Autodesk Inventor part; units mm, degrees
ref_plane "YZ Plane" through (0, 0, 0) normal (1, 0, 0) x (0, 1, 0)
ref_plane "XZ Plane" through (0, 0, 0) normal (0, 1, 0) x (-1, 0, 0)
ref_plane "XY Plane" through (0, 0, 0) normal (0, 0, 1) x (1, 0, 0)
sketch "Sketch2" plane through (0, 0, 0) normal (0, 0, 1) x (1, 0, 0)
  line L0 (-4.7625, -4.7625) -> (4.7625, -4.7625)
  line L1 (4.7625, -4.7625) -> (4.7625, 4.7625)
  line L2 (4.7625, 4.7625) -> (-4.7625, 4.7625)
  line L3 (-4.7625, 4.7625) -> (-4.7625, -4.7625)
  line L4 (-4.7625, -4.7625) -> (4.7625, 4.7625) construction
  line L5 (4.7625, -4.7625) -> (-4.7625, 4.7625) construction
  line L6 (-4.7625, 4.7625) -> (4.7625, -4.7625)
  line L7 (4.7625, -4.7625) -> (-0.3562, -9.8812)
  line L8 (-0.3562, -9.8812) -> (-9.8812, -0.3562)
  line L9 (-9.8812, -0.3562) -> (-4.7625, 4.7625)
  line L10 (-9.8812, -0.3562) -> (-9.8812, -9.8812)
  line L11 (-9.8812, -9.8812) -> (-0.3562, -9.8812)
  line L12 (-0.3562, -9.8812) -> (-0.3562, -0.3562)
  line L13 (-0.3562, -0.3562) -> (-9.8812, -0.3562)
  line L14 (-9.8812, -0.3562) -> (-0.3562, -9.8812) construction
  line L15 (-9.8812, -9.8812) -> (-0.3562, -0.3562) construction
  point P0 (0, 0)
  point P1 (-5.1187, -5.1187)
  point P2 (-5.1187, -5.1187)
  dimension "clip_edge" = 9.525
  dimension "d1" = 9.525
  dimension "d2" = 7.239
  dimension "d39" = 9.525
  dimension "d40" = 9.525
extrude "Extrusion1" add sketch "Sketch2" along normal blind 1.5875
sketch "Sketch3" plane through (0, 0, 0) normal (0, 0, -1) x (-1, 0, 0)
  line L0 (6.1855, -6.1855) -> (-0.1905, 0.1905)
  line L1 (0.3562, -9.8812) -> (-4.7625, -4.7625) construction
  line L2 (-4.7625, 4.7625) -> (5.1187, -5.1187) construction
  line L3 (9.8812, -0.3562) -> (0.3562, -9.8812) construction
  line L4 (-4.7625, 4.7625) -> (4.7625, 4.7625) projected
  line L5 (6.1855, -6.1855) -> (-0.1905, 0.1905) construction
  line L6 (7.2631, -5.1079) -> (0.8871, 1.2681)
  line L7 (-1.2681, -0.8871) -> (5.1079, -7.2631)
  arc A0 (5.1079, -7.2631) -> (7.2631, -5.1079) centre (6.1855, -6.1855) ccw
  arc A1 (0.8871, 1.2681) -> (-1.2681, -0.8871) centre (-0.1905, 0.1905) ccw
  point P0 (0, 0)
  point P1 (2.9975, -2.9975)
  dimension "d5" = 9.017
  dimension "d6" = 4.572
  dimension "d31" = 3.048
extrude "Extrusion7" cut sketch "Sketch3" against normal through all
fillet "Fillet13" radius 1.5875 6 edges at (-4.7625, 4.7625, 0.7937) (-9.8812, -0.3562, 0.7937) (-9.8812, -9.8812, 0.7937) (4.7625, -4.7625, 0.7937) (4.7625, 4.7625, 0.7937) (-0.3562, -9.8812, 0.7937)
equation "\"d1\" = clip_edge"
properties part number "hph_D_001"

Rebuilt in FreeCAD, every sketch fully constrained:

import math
import FreeCAD as App
import Part
import Sketcher
from FreeCAD import Vector
Q = App.Units.Quantity


def edges_at(feature, points):
    """Names of the edges that pass closest to the given points."""
    edges = feature.Shape.Edges
    near = lambda p: min(range(len(edges)), key=lambda i: edges[i].distToShape(Part.Vertex(*p))[0])
    return sorted({f"Edge{near(p) + 1}" for p in points})


def add_polygon(sketch, points):
    """Adds a closed chain of lines whose ends are joined by coincident constraints."""
    first, n = sketch.GeometryCount, len(points)
    for a, b in zip(points, points[1:] + points[:1]):
        sketch.addGeometry(Part.LineSegment(App.Vector(*a, 0), App.Vector(*b, 0)), False)
    for i in range(n):
        sketch.addConstraint(Sketcher.Constraint("Coincident", first + i, 2, first + (i + 1) % n, 1))

doc = App.newDocument("Part")
body = doc.addObject("PartDesign::Body", "Body")

# Sketch on XY plane
sketch1 = body.newObject("Sketcher::SketchObject", "Sketch")
sketch1.AttachmentSupport = (doc.getObject("XY_Plane"), [""])
sketch1.MapMode = "FlatFace"
add_polygon(sketch1, [(-5, 5), (-10, 0), (-10, -10), (0, -10), (5, -5), (5, 5)])  # lines 0-5
sketch1.addConstraint([
    Sketcher.Constraint("Vertical", 1),
    Sketcher.Constraint("Horizontal", 2),
    Sketcher.Constraint("Vertical", 4),
    Sketcher.Constraint("Horizontal", 5),
    Sketcher.Constraint("Symmetric", 3, 2, 5, 2, -1, 1),
    Sketcher.Constraint("Parallel", 0, 3),
    Sketcher.Constraint("Equal", 2, 5),
    Sketcher.Constraint("Equal", 5, 1),
    Sketcher.Constraint("DistanceX", 2, 1, 2, 2, Q("0.375 in")),
    Sketcher.Constraint("Distance", 0, Q("0.285 in")),
    Sketcher.Constraint("Angle", 0, Q("-135 deg")),
])
pad1 = body.newObject("PartDesign::Pad", "Pad")
pad1.Profile = sketch1
pad1.Length = Q("0.0625 in")

# Sketch on XY plane
sketch2 = body.newObject("Sketcher::SketchObject", "Sketch001")
sketch2.AttachmentSupport = (doc.getObject("XY_Plane"), [""])
sketch2.MapMode = "FlatFace"
sketch2.addGeometry([
    Part.ArcOfCircle(Part.Circle(Vector(-6.2, -6.2, 0), Vector(0, 0, 1), 1.5), math.radians(135), math.radians(315)),
    Part.LineSegment(Vector(-7.3, -5.1, 0), Vector(-0.9, 1.3, 0)),
    Part.ArcOfCircle(Part.Circle(Vector(0.2, 0.2, 0), Vector(0, 0, 1), 1.5), math.radians(-45), math.radians(135)),
    Part.LineSegment(Vector(1.3, -0.9, 0), Vector(-5.1, -7.3, 0)),
], False)
sketch2.addConstraint([
    Sketcher.Constraint("Tangent", 0, 1, 1, 1),
    Sketcher.Constraint("Tangent", 1, 2, 2, 2),
    Sketcher.Constraint("Tangent", 2, 1, 3, 1),
    Sketcher.Constraint("Tangent", 3, 2, 0, 2),
    Sketcher.Constraint("Equal", 0, 2),
    Sketcher.Constraint("Radius", 0, Q("0.06 in")),
    Sketcher.Constraint("Distance", 1, Q("0.355 in")),
    Sketcher.Constraint("Angle", 1, Q("45 deg")),
    Sketcher.Constraint("DistanceX", -1, 1, 2, 3, Q("0.0075 in")),
    Sketcher.Constraint("DistanceY", -1, 1, 2, 3, Q("0.0075 in")),
])
pocket1 = body.newObject("PartDesign::Pocket", "Pocket")
pocket1.Profile = sketch2
pocket1.Type = "ThroughAll"
pocket1.Reversed = True
doc.recompute()

fillet = body.newObject("PartDesign::Fillet", "Fillet")
fillet.Base = (pocket1, edges_at(pocket1, [
    (-4.763, 4.763, 0.794),
    (-9.881, -0.356, 0.794),
    (-9.881, -9.881, 0.794),
    (4.763, -4.763, 0.794),
    (4.763, 4.763, 0.794),
    (-0.356, -9.881, 0.794),
]))
fillet.Radius = Q("0.0625 in")

doc.recompute()
